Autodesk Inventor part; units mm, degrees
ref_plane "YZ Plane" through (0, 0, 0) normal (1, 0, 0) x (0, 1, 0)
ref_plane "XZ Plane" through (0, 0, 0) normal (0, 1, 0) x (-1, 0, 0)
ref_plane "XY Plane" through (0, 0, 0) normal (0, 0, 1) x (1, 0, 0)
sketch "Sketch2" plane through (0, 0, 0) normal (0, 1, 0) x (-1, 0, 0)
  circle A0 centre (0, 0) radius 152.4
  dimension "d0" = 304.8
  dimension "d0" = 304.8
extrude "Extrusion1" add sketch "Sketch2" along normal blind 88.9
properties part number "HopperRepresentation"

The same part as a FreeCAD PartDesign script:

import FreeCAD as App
import Part
import Sketcher
from FreeCAD import Vector
Q = App.Units.Quantity

doc = App.newDocument("Part")
body = doc.addObject("PartDesign::Body", "Body")

# Sketch on XZ plane
sketch1 = body.newObject("Sketcher::SketchObject", "Sketch")
sketch1.AttachmentSupport = (doc.getObject("XZ_Plane"), [""])
sketch1.MapMode = "FlatFace"
sketch1.addGeometry(Part.Circle(Vector(0, 0, 0), Vector(0, 0, 1), 152), False)
sketch1.addConstraint([
    Sketcher.Constraint("Coincident", 0, 3, -1, 1),
    Sketcher.Constraint("Diameter", 0, Q("12 in")),
])
pad1 = body.newObject("PartDesign::Pad", "Pad")
pad1.Profile = sketch1
pad1.Length = Q("3.5 in")
pad1.Reversed = True

doc.recompute()
